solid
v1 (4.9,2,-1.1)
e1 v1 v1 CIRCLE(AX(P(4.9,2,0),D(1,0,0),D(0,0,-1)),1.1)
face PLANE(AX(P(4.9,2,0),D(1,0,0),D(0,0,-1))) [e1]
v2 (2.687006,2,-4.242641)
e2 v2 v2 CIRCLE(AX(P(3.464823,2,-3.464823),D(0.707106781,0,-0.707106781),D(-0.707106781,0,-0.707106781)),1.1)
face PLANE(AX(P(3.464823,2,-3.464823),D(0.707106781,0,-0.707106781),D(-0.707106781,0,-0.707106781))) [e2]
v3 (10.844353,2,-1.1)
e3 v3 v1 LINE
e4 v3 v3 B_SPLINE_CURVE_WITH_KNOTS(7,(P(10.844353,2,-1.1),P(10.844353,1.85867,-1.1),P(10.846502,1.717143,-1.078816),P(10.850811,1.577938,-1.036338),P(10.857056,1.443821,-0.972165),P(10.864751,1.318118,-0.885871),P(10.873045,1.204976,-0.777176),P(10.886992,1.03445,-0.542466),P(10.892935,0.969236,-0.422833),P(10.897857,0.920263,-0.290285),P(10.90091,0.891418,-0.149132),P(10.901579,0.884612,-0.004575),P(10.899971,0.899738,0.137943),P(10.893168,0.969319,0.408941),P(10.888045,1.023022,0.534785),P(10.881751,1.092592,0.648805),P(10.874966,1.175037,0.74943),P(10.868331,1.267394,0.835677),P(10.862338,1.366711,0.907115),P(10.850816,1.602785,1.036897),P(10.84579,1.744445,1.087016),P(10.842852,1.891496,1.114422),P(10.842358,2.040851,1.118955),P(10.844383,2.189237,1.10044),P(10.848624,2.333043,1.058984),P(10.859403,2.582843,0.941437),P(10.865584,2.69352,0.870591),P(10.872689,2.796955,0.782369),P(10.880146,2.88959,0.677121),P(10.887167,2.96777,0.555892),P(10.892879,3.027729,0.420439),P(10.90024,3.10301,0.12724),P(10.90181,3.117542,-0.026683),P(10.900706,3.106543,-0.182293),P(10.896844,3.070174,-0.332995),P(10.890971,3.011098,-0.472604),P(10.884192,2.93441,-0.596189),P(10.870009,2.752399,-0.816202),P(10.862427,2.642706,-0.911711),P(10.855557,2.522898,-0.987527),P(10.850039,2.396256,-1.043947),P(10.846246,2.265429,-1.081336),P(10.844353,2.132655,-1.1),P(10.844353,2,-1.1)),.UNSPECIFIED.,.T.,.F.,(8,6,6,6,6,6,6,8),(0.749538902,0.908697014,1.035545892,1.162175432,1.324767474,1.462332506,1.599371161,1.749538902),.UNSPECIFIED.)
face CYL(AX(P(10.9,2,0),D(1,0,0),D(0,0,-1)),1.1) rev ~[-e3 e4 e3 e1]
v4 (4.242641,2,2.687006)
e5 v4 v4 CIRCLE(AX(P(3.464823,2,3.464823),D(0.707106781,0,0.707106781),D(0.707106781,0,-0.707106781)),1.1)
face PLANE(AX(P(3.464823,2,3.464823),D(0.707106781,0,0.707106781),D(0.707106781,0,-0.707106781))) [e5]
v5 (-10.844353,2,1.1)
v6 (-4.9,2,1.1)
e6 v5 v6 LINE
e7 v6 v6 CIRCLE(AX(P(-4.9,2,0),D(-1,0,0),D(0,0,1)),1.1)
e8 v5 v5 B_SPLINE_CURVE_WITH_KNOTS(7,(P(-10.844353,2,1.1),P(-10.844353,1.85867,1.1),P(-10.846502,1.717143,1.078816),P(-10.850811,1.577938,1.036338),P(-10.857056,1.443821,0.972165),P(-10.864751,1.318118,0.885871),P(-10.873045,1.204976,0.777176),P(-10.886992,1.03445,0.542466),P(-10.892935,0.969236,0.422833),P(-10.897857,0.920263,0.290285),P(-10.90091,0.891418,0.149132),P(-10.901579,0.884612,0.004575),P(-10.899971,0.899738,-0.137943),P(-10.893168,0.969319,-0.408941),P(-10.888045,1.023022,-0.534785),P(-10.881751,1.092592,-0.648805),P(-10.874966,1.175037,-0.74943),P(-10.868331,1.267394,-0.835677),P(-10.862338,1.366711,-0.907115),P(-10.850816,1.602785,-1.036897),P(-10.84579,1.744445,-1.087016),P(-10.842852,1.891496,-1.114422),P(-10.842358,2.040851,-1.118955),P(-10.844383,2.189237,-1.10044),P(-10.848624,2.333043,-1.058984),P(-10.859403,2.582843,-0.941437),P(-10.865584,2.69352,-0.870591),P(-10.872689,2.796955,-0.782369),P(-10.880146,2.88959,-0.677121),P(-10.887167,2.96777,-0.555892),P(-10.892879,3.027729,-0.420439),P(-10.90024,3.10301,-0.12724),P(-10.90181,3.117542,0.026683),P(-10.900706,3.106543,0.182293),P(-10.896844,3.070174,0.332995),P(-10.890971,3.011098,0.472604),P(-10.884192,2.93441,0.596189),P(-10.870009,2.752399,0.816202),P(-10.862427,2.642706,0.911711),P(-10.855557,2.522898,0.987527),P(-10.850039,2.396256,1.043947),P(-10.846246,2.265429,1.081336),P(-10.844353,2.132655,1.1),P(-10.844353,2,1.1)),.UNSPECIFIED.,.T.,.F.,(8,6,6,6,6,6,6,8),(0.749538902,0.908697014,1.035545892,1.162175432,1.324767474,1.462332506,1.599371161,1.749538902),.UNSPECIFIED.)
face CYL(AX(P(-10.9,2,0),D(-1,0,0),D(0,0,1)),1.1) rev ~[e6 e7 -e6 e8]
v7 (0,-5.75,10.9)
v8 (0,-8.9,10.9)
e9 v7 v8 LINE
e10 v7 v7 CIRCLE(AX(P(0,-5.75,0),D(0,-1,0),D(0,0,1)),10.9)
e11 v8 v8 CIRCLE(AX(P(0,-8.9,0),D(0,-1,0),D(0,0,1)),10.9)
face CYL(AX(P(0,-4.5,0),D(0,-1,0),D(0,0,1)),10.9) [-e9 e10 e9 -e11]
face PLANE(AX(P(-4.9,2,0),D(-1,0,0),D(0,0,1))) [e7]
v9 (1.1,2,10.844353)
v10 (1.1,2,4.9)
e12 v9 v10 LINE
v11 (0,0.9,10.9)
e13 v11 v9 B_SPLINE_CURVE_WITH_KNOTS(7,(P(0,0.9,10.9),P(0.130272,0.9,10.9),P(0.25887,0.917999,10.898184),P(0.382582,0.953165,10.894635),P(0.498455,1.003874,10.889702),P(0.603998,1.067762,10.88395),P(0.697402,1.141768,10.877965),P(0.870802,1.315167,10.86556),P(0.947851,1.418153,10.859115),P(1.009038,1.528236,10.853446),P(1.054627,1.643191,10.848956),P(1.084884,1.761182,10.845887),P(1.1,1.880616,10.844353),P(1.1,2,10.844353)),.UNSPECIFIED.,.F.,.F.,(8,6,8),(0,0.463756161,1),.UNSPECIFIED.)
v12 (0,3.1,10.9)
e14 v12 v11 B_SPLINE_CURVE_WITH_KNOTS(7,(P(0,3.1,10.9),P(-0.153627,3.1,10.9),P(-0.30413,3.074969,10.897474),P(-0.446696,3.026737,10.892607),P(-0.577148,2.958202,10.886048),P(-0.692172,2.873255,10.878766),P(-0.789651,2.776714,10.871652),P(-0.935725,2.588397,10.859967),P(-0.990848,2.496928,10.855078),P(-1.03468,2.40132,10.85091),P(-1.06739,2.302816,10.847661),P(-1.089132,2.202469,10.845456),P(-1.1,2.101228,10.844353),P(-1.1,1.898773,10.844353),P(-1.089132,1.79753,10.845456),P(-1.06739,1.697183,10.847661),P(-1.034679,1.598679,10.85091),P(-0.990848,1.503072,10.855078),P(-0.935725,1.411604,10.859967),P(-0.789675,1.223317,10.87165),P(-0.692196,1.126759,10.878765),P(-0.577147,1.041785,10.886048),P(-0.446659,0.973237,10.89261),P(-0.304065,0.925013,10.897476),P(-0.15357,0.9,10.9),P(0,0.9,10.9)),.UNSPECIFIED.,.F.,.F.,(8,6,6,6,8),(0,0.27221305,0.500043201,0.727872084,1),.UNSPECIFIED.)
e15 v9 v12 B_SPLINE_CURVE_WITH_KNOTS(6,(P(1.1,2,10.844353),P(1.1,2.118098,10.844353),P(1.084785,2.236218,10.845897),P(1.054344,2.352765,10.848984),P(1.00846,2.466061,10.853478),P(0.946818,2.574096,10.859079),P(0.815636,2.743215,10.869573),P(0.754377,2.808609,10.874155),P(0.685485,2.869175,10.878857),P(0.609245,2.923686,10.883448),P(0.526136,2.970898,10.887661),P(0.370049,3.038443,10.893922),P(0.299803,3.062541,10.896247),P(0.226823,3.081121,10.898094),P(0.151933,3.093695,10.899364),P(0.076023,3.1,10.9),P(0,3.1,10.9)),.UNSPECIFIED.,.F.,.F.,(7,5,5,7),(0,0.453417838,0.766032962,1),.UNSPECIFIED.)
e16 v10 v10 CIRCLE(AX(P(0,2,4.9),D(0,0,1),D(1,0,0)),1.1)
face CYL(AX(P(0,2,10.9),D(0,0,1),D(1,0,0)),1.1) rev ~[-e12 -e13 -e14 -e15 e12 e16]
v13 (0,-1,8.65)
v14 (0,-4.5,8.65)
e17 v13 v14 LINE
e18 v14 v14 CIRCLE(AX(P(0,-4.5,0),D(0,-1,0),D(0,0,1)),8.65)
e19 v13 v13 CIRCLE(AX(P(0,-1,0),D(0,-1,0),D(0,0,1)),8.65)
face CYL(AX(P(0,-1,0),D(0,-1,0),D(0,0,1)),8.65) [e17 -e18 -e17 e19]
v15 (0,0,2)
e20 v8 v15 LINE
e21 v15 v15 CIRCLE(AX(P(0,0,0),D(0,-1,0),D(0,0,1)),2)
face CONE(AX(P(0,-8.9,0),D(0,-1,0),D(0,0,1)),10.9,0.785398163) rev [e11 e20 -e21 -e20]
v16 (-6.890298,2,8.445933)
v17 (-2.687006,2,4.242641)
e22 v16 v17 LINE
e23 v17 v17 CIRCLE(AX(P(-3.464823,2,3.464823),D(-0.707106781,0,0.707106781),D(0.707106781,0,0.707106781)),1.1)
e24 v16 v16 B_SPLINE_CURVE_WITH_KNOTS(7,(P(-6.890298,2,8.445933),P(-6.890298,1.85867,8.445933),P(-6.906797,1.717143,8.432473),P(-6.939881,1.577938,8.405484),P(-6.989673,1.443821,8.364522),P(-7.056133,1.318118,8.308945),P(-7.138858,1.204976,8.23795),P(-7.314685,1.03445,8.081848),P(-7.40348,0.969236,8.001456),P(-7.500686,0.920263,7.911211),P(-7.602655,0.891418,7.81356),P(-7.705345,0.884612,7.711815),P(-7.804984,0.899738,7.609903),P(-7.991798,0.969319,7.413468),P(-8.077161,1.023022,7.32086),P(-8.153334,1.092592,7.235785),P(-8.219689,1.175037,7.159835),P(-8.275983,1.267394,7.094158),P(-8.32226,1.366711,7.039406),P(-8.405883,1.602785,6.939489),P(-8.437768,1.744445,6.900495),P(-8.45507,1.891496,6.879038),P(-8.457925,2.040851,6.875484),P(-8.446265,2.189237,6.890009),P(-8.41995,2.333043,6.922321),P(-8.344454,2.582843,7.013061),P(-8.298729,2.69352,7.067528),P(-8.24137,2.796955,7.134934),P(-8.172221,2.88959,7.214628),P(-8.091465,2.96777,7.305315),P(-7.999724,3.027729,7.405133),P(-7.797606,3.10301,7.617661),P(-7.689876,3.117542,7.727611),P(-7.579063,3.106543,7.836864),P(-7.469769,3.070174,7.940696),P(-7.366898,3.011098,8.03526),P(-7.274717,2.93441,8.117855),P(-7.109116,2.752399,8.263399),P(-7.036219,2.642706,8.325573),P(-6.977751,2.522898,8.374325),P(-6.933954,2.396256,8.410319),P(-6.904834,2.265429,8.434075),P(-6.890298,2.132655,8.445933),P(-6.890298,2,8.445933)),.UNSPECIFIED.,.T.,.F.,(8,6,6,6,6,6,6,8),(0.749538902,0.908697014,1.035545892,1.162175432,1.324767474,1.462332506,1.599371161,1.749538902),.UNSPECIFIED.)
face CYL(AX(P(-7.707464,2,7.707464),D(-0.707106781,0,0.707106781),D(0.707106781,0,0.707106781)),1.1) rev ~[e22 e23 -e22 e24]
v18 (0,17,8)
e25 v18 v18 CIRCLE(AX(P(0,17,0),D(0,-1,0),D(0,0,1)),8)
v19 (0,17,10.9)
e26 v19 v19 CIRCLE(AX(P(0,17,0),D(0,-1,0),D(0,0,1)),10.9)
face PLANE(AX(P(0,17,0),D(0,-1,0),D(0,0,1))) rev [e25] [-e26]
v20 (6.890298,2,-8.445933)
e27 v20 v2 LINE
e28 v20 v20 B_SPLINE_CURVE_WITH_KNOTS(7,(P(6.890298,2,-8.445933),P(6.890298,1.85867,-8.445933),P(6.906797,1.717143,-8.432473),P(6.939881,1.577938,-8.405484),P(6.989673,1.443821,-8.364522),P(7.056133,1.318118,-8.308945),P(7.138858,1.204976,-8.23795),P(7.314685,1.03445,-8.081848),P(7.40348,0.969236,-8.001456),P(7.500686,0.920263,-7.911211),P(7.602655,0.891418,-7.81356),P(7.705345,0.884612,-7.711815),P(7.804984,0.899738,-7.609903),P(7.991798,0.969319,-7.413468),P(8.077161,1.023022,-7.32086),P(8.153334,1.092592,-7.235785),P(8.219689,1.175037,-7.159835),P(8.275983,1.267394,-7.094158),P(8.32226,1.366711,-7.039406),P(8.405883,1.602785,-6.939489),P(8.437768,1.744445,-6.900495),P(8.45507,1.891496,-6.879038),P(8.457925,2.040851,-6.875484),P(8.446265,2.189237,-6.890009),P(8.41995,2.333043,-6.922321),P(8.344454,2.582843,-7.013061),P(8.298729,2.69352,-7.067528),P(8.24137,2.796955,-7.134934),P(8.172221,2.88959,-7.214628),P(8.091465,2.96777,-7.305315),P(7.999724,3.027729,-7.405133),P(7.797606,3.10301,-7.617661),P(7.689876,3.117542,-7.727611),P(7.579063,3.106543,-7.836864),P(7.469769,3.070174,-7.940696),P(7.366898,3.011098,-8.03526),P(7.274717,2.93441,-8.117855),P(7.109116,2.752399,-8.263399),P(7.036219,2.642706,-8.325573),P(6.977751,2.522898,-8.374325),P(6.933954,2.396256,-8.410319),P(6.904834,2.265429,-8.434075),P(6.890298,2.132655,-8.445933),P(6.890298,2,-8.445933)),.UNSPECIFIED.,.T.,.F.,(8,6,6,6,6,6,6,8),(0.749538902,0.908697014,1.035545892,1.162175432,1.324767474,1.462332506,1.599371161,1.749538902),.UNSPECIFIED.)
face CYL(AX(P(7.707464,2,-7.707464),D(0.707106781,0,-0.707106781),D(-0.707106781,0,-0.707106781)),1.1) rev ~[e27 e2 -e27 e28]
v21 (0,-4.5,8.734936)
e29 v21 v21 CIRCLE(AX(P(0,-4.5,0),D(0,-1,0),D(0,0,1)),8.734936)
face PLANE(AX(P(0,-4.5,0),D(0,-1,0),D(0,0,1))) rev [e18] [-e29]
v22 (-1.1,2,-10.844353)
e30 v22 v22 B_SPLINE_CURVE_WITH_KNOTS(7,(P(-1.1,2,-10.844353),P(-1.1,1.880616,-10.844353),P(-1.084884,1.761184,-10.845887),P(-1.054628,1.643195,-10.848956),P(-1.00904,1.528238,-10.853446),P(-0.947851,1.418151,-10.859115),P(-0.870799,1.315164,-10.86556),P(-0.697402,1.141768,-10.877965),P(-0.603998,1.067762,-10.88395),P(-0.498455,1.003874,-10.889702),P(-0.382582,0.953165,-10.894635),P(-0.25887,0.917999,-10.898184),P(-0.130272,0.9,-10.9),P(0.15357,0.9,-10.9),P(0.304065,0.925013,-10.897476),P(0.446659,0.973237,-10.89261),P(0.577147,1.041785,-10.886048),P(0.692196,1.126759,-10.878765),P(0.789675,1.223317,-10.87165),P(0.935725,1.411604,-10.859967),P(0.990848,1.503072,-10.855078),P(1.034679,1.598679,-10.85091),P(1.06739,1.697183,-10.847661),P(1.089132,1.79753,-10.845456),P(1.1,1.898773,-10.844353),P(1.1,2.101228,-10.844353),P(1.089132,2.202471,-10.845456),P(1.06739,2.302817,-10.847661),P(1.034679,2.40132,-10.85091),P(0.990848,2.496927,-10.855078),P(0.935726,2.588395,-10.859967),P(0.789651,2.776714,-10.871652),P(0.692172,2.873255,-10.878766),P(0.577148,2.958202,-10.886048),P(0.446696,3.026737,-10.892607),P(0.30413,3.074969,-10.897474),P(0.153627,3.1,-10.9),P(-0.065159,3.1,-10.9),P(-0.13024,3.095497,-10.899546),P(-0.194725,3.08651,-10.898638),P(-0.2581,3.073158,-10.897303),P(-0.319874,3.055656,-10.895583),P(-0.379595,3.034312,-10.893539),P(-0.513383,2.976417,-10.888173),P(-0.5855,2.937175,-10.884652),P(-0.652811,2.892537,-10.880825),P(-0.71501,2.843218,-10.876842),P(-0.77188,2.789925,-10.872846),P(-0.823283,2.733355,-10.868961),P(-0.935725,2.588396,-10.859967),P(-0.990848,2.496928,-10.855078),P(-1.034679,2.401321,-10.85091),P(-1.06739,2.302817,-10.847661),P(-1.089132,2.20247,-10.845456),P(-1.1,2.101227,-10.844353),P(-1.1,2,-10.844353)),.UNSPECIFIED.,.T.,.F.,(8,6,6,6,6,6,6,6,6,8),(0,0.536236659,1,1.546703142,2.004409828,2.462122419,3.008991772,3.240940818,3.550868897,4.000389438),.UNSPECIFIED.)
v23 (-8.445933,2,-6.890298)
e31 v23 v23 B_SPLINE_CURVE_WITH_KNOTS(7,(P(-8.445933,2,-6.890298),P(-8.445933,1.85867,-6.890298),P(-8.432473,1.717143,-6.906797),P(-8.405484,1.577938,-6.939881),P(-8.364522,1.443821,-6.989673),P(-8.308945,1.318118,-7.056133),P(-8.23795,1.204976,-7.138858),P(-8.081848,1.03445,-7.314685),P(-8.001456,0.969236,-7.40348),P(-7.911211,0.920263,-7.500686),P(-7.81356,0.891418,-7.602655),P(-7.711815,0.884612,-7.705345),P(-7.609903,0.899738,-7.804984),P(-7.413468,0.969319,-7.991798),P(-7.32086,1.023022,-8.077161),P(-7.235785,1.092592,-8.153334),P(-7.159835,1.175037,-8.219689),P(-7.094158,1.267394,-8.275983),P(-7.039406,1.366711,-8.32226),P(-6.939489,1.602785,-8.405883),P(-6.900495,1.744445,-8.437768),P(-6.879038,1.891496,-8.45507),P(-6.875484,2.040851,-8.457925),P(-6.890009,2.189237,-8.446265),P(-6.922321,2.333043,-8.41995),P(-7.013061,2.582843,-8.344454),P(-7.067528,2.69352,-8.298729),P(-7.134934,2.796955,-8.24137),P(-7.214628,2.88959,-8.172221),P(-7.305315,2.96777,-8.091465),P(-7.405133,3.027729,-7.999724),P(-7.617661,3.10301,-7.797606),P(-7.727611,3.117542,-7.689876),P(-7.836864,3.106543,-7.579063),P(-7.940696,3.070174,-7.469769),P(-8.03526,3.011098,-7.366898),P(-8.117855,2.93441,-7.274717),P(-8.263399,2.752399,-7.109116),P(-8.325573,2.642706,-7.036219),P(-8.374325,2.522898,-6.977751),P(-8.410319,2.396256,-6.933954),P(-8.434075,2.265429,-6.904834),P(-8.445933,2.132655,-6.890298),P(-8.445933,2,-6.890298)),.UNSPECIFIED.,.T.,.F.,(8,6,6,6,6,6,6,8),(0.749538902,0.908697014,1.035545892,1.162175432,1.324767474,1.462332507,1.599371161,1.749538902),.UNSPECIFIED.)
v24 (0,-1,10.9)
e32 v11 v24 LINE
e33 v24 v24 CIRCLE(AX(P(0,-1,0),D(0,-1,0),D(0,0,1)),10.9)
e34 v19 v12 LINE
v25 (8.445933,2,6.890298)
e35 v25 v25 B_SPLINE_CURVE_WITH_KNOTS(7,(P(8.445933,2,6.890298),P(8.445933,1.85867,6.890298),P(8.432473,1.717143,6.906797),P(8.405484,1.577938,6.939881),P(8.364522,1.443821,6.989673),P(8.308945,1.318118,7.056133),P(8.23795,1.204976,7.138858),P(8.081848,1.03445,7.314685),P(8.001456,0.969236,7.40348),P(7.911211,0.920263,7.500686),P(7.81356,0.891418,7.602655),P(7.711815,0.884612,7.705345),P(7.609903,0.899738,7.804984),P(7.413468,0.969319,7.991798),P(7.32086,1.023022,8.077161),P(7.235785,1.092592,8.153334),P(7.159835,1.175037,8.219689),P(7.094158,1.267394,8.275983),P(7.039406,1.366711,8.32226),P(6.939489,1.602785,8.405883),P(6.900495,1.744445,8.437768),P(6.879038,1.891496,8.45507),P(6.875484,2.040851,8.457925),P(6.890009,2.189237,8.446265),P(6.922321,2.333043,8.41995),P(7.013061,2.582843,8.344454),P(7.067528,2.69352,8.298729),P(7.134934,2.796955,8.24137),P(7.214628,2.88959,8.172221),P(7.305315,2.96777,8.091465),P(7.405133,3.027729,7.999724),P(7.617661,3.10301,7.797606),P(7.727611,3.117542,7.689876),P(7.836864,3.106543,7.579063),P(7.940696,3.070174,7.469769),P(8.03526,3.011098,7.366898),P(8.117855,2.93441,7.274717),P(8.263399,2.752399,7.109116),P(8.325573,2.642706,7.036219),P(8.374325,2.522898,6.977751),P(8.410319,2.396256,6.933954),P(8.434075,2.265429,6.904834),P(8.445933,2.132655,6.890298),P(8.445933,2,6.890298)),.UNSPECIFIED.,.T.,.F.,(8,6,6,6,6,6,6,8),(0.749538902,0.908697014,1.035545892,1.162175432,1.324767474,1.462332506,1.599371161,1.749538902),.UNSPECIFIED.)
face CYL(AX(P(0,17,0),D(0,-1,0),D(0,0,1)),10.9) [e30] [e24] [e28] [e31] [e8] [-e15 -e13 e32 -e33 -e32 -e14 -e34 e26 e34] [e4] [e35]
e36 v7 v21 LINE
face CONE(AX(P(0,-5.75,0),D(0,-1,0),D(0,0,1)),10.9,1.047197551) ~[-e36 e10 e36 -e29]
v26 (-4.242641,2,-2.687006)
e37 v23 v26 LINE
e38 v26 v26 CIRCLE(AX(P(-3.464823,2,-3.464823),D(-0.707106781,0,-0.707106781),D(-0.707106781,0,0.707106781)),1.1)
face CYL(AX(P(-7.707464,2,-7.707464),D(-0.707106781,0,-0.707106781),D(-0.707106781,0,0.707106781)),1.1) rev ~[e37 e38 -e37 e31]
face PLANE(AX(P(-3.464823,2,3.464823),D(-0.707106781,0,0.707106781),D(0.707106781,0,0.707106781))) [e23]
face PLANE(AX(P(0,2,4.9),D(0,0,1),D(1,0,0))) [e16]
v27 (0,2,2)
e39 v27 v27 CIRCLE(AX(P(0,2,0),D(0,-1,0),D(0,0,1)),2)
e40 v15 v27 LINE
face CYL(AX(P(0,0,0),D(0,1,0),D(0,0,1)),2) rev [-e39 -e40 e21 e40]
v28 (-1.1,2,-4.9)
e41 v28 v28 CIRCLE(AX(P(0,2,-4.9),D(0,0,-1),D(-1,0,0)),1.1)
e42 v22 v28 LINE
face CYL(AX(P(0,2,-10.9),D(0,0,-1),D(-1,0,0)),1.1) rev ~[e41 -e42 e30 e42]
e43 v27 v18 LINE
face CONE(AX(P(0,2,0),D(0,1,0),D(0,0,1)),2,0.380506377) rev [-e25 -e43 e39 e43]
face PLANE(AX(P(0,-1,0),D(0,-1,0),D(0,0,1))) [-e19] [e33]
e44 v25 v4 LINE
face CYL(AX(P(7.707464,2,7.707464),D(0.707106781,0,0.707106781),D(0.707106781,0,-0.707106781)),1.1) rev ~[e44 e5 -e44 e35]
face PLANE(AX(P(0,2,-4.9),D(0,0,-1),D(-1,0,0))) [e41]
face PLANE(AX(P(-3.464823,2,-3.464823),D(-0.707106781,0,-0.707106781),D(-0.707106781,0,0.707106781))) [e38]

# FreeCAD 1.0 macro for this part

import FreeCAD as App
import Part
import Sketcher
from FreeCAD import Vector
Q = App.Units.Quantity


def edges_at(feature, points):
    """Names of the edges that pass closest to the given points."""
    edges = feature.Shape.Edges
    near = lambda p: min(range(len(edges)), key=lambda i: edges[i].distToShape(Part.Vertex(*p))[0])
    return sorted({f"Edge{near(p) + 1}" for p in points})

doc = App.newDocument("Part")
body = doc.addObject("PartDesign::Body", "Body")

# Sketch on XY plane
sketch1 = doc.addObject("Sketcher::SketchObject", "Sketch")
body.addObject(sketch1)
sketch1.AttachmentSupport = (doc.XY_Plane, [""])
sketch1.MapMode = "FlatFace"
sketch1.addGeometry(Part.LineSegment(Vector(-2, 0, 0), Vector(-2, 2, 0)), False)
sketch1.addGeometry(Part.LineSegment(Vector(-2, 2, 0), Vector(-8, 17, 0)), False)
sketch1.addGeometry(Part.LineSegment(Vector(-8, 17, 0), Vector(-10.9, 17, 0)), False)
sketch1.addGeometry(Part.LineSegment(Vector(-10.9, 17, 0), Vector(-10.9, -1, 0)), False)
sketch1.addGeometry(Part.LineSegment(Vector(-10.9, -1, 0), Vector(-8.65, -1, 0)), False)
sketch1.addGeometry(Part.LineSegment(Vector(-8.65, -1, 0), Vector(-8.65, -4.5, 0)), False)
sketch1.addGeometry(Part.LineSegment(Vector(-8.65, -4.5, 0), Vector(-10.9, -4.5, 0)), False)
sketch1.addGeometry(Part.LineSegment(Vector(-10.9, -4.5, 0), Vector(-10.9, -8.9, 0)), False)
sketch1.addGeometry(Part.LineSegment(Vector(-10.9, -8.9, 0), Vector(-2, 0, 0)), False)
sketch1.addConstraint(Sketcher.Constraint("Coincident", 0, 2, 1, 1))
sketch1.addConstraint(Sketcher.Constraint("Coincident", 1, 2, 2, 1))
sketch1.addConstraint(Sketcher.Constraint("Coincident", 2, 2, 3, 1))
sketch1.addConstraint(Sketcher.Constraint("Coincident", 3, 2, 4, 1))
sketch1.addConstraint(Sketcher.Constraint("Coincident", 4, 2, 5, 1))
sketch1.addConstraint(Sketcher.Constraint("Coincident", 5, 2, 6, 1))
sketch1.addConstraint(Sketcher.Constraint("Coincident", 6, 2, 7, 1))
sketch1.addConstraint(Sketcher.Constraint("Coincident", 7, 2, 8, 1))
sketch1.addConstraint(Sketcher.Constraint("Coincident", 8, 2, 0, 1))
sketch1.addConstraint(Sketcher.Constraint("Vertical", 0))
sketch1.addConstraint(Sketcher.Constraint("Horizontal", 2))
sketch1.addConstraint(Sketcher.Constraint("Vertical", 3))
sketch1.addConstraint(Sketcher.Constraint("Horizontal", 4))
sketch1.addConstraint(Sketcher.Constraint("Vertical", 5))
sketch1.addConstraint(Sketcher.Constraint("Horizontal", 6))
sketch1.addConstraint(Sketcher.Constraint("Vertical", 7))
sketch1.addConstraint(Sketcher.Constraint("PointOnObject", 8, 2, -1))
sketch1.addConstraint(Sketcher.Constraint("Vertical", 3, 2, 6, 2))
sketch1.addConstraint(Sketcher.Constraint("DistanceY", 0, 1, 0, 2, Q("2 mm")))
sketch1.addConstraint(Sketcher.Constraint("DistanceY", 3, 2, 3, 1, Q("18 mm")))
sketch1.addConstraint(Sketcher.Constraint("Angle", 8, Q("45 deg")))
sketch1.addConstraint(Sketcher.Constraint("DistanceX", 2, 2, 2, 1, Q("2.9 mm")))
sketch1.addConstraint(Sketcher.Constraint("DistanceY", 5, 2, 5, 1, Q("3.5 mm")))
sketch1.addConstraint(Sketcher.Constraint("DistanceY", 7, 2, 7, 1, Q("4.4 mm")))
sketch1.addConstraint(Sketcher.Constraint("DistanceX", 0, 2, -1, 1, Q("2 mm")))
sketch1.addConstraint(Sketcher.Constraint("DistanceX", 1, 2, -1, 1, Q("8 mm")))
sketch1.addConstraint(Sketcher.Constraint("DistanceX", 4, 1, 4, 2, Q("2.25 mm")))
revolution = doc.addObject("PartDesign::Revolution", "Revolution")
body.addObject(revolution)
revolution.Profile = sketch1
revolution.ReferenceAxis = (sketch1, ["V_Axis"])
revolution.Angle = 360

# Sketch on YZ plane
sketch2 = doc.addObject("Sketcher::SketchObject", "Sketch001")
body.addObject(sketch2)
sketch2.AttachmentSupport = (doc.YZ_Plane, [""])
sketch2.MapMode = "FlatFace"
sketch2.AttachmentOffset = App.Placement(Vector(0, 0, -10.9), App.Rotation())
sketch2.addGeometry(Part.Circle(Vector(2, 0, 0), Vector(0, 0, 1), 1.1), False)
sketch2.addConstraint(Sketcher.Constraint("PointOnObject", 0, 3, -1))
sketch2.addConstraint(Sketcher.Constraint("Diameter", 0, Q("2.2 mm")))
sketch2.addConstraint(Sketcher.Constraint("DistanceX", -1, 1, 0, 3, Q("2 mm")))
pocket1 = doc.addObject("PartDesign::Pocket", "Pocket")
body.addObject(pocket1)
pocket1.Profile = sketch2
pocket1.Length = 6
pocket1.Reversed = True
doc.recompute()

polarpattern = doc.addObject("PartDesign::PolarPattern", "PolarPattern")
body.addObject(polarpattern)
polarpattern.Originals = [pocket1]
polarpattern.Axis = (doc.Y_Axis, [""])
polarpattern.Angle = 360
polarpattern.Occurrences = 8
body.Tip = polarpattern
doc.recompute()

chamfer = doc.addObject("PartDesign::Chamfer", "Chamfer")
body.addObject(chamfer)
chamfer.Base = (polarpattern, edges_at(polarpattern, [(0, -4.5, -10.9)]))
chamfer.ChamferType = "Two distances"
chamfer.Size = 1.25
chamfer.Size2 = 2.165064

doc.recompute()
